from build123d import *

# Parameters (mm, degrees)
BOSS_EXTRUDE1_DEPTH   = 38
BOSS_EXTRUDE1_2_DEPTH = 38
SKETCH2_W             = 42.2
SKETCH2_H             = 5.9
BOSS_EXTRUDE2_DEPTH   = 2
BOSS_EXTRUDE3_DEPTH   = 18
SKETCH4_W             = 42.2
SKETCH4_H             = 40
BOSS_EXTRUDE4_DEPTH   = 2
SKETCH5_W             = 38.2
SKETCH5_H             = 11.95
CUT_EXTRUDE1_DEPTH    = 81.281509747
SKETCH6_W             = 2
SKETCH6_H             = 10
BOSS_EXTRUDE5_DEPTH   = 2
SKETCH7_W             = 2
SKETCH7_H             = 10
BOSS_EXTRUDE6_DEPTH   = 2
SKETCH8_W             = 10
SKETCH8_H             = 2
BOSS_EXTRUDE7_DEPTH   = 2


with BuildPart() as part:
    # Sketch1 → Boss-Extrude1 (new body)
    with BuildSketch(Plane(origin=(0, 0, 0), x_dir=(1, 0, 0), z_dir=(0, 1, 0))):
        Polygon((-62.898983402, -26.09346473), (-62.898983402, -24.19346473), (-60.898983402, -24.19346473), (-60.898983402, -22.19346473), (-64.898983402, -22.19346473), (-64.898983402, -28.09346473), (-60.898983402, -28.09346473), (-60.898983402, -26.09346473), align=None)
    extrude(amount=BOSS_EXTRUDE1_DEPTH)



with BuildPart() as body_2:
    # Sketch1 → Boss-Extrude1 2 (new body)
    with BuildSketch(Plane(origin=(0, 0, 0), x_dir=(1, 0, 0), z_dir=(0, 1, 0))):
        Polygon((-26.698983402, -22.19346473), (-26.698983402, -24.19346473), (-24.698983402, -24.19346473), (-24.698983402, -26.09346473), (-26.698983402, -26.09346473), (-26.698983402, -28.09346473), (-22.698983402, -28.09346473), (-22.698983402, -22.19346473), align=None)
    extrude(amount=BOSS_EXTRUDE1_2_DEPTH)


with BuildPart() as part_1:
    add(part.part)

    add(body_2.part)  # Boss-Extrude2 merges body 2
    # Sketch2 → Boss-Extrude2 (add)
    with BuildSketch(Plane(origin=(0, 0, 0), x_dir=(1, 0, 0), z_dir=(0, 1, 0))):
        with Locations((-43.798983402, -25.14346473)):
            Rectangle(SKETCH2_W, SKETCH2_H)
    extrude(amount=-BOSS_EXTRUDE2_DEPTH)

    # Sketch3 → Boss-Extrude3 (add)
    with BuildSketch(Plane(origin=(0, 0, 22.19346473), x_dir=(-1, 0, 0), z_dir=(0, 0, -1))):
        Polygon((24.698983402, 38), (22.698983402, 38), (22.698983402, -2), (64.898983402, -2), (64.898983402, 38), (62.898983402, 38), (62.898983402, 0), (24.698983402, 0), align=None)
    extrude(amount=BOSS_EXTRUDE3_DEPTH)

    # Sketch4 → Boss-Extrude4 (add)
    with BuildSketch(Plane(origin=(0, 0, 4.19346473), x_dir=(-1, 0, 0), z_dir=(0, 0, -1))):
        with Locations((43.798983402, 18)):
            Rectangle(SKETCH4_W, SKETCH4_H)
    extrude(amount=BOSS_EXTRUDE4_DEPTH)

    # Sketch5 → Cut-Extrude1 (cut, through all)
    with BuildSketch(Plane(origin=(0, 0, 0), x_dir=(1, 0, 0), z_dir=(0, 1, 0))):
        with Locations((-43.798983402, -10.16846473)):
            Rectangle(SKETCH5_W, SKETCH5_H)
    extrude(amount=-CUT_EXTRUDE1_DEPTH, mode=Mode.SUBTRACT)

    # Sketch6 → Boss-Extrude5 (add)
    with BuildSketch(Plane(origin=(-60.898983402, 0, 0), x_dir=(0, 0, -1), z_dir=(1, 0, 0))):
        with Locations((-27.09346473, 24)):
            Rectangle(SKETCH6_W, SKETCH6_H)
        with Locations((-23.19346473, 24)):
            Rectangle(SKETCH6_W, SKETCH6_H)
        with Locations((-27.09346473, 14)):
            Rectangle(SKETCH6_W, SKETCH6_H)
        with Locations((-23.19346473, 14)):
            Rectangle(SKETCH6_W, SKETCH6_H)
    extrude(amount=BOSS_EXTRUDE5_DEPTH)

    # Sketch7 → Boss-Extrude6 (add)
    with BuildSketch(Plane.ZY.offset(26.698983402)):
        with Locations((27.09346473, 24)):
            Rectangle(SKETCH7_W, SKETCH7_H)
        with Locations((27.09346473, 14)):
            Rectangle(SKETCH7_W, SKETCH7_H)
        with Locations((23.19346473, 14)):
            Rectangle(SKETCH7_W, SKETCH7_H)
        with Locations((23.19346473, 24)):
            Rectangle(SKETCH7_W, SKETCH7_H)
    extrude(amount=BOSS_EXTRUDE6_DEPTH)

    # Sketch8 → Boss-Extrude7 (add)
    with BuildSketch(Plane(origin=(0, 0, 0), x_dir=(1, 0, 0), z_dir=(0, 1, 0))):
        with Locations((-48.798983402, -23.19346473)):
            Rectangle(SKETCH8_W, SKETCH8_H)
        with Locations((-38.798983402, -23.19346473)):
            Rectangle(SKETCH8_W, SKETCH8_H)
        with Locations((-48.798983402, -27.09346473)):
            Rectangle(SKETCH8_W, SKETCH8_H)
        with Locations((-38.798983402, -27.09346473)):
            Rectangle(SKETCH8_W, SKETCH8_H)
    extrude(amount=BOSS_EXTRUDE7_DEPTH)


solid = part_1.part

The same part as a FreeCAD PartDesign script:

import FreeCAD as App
import Part
import Sketcher
Q = App.Units.Quantity

doc = App.newDocument("Part")
body = doc.addObject("PartDesign::Body", "Body")

sketch1 = body.newObject("Sketcher::SketchObject", "Sketch")
sketch1.AttachmentSupport = (doc.getObject("XZ_Plane"), [""])
sketch1.MapMode = "FlatFace"
sketch1.addGeometry([
    Part.LineSegment(App.Vector(-62.9, 26.1, 0), App.Vector(-62.9, 24.2, 0)),
    Part.LineSegment(App.Vector(-62.9, 24.2, 0), App.Vector(-60.9, 24.2, 0)),
    Part.LineSegment(App.Vector(-60.9, 24.2, 0), App.Vector(-60.9, 22.2, 0)),
    Part.LineSegment(App.Vector(-60.9, 22.2, 0), App.Vector(-64.9, 22.2, 0)),
    Part.LineSegment(App.Vector(-64.9, 22.2, 0), App.Vector(-64.9, 28.1, 0)),
    Part.LineSegment(App.Vector(-64.9, 28.1, 0), App.Vector(-60.9, 28.1, 0)),
    Part.LineSegment(App.Vector(-60.9, 28.1, 0), App.Vector(-60.9, 26.1, 0)),
    Part.LineSegment(App.Vector(-60.9, 26.1, 0), App.Vector(-62.9, 26.1, 0)),
], False)
sketch1.addConstraint([
    Sketcher.Constraint("Coincident", 0, 2, 1, 1),
    Sketcher.Constraint("Coincident", 1, 2, 2, 1),
    Sketcher.Constraint("Coincident", 2, 2, 3, 1),
    Sketcher.Constraint("Coincident", 3, 2, 4, 1),
    Sketcher.Constraint("Coincident", 4, 2, 5, 1),
    Sketcher.Constraint("Coincident", 5, 2, 6, 1),
    Sketcher.Constraint("Coincident", 6, 2, 7, 1),
    Sketcher.Constraint("Coincident", 7, 2, 0, 1),
    Sketcher.Constraint("Vertical", 0),
    Sketcher.Constraint("Horizontal", 1),
    Sketcher.Constraint("Vertical", 2),
    Sketcher.Constraint("Horizontal", 3),
    Sketcher.Constraint("Vertical", 4),
    Sketcher.Constraint("Horizontal", 5),
    Sketcher.Constraint("Vertical", 6),
    Sketcher.Constraint("Horizontal", 7),
    Sketcher.Constraint("Vertical", 2, 2, 5, 2),
    Sketcher.Constraint("Equal", 7, 2),
    Sketcher.Constraint("Equal", 2, 6),
    Sketcher.Constraint("DistanceX", 1, 1, 1, 2, Q("2 mm")),
    Sketcher.Constraint("DistanceX", 3, 2, 3, 1, Q("4 mm")),
    Sketcher.Constraint("DistanceY", 0, 2, 0, 1, Q("1.9 mm")),
    Sketcher.Constraint("DistanceX", 0, 2, -1, 1, Q("62.898983 mm")),
    Sketcher.Constraint("DistanceY", -1, 1, 0, 2, Q("24.193465 mm")),
])
pad1 = body.newObject("PartDesign::Pad", "Pad")
pad1.Profile = sketch1
pad1.Length = 38
pad1.Reversed = True
body2 = doc.addObject("PartDesign::Body", "Body001")

sketch2 = body2.newObject("Sketcher::SketchObject", "Sketch001")
sketch2.AttachmentSupport = (doc.getObject("XZ_Plane001"), [""])
sketch2.MapMode = "FlatFace"
sketch2.addGeometry([
    Part.LineSegment(App.Vector(-26.7, 22.2, 0), App.Vector(-26.7, 24.2, 0)),
    Part.LineSegment(App.Vector(-26.7, 24.2, 0), App.Vector(-24.7, 24.2, 0)),
    Part.LineSegment(App.Vector(-24.7, 24.2, 0), App.Vector(-24.7, 26.1, 0)),
    Part.LineSegment(App.Vector(-24.7, 26.1, 0), App.Vector(-26.7, 26.1, 0)),
    Part.LineSegment(App.Vector(-26.7, 26.1, 0), App.Vector(-26.7, 28.1, 0)),
    Part.LineSegment(App.Vector(-26.7, 28.1, 0), App.Vector(-22.7, 28.1, 0)),
    Part.LineSegment(App.Vector(-22.7, 28.1, 0), App.Vector(-22.7, 22.2, 0)),
    Part.LineSegment(App.Vector(-22.7, 22.2, 0), App.Vector(-26.7, 22.2, 0)),
], False)
sketch2.addConstraint([
    Sketcher.Constraint("Coincident", 0, 2, 1, 1),
    Sketcher.Constraint("Coincident", 1, 2, 2, 1),
    Sketcher.Constraint("Coincident", 2, 2, 3, 1),
    Sketcher.Constraint("Coincident", 3, 2, 4, 1),
    Sketcher.Constraint("Coincident", 4, 2, 5, 1),
    Sketcher.Constraint("Coincident", 5, 2, 6, 1),
    Sketcher.Constraint("Coincident", 6, 2, 7, 1),
    Sketcher.Constraint("Coincident", 7, 2, 0, 1),
    Sketcher.Constraint("Vertical", 0),
    Sketcher.Constraint("Horizontal", 1),
    Sketcher.Constraint("Vertical", 2),
    Sketcher.Constraint("Horizontal", 3),
    Sketcher.Constraint("Vertical", 4),
    Sketcher.Constraint("Horizontal", 5),
    Sketcher.Constraint("Vertical", 6),
    Sketcher.Constraint("Horizontal", 7),
    Sketcher.Constraint("Vertical", 0, 2, 3, 2),
    Sketcher.Constraint("Equal", 3, 0),
    Sketcher.Constraint("Equal", 0, 4),
    Sketcher.Constraint("DistanceX", 1, 1, 1, 2, Q("2 mm")),
    Sketcher.Constraint("DistanceX", 5, 1, 5, 2, Q("4 mm")),
    Sketcher.Constraint("DistanceY", 2, 1, 2, 2, Q("1.9 mm")),
    Sketcher.Constraint("DistanceX", 0, 2, -1, 1, Q("26.698983 mm")),
    Sketcher.Constraint("DistanceY", -1, 1, 0, 2, Q("24.193465 mm")),
])
pad2 = body2.newObject("PartDesign::Pad", "Pad001")
pad2.Profile = sketch2
pad2.Length = 38
pad2.Reversed = True
body.AllowCompound = True
doc.recompute()

boolean = body.newObject("PartDesign::Boolean", "Boolean")
boolean.Type = "Fuse"
boolean.addObjects([body2])

sketch3 = body.newObject("Sketcher::SketchObject", "Sketch002")
sketch3.AttachmentSupport = (doc.getObject("XZ_Plane"), [""])
sketch3.MapMode = "FlatFace"
sketch3.addGeometry([
    Part.LineSegment(App.Vector(-65, 22, 0), App.Vector(-65, 28, 0)),
    Part.LineSegment(App.Vector(-65, 28, 0), App.Vector(-23, 28, 0)),
    Part.LineSegment(App.Vector(-23, 28, 0), App.Vector(-23, 22, 0)),
    Part.LineSegment(App.Vector(-23, 22, 0), App.Vector(-65, 22, 0)),
], False)
sketch3.addConstraint([
    Sketcher.Constraint("Coincident", 0, 2, 1, 1),
    Sketcher.Constraint("Coincident", 1, 2, 2, 1),
    Sketcher.Constraint("Coincident", 2, 2, 3, 1),
    Sketcher.Constraint("Coincident", 3, 2, 0, 1),
    Sketcher.Constraint("Vertical", 0),
    Sketcher.Constraint("Horizontal", 1),
    Sketcher.Constraint("Vertical", 2),
    Sketcher.Constraint("Horizontal", 3),
    Sketcher.Constraint("DistanceX", 1, 1, 1, 2, Q("42.2 mm")),
    Sketcher.Constraint("DistanceY", 0, 1, 0, 2, Q("5.9 mm")),
    Sketcher.Constraint("DistanceX", 0, 2, -1, 1, Q("64.898983 mm")),
    Sketcher.Constraint("DistanceY", -1, 1, 0, 2, Q("28.093465 mm")),
])
pad3 = body.newObject("PartDesign::Pad", "Pad002")
pad3.Profile = sketch3
pad3.Length = 2

sketch4 = body.newObject("Sketcher::SketchObject", "Sketch003")
sketch4.AttachmentSupport = (doc.getObject("XY_Plane"), [""])
sketch4.MapMode = "FlatFace"
sketch4.AttachmentOffset = App.Placement(App.Vector(0, 0, 22.193465), App.Rotation())
sketch4.addGeometry([
    Part.LineSegment(App.Vector(-24.7, 38, 0), App.Vector(-22.7, 38, 0)),
    Part.LineSegment(App.Vector(-22.7, 38, 0), App.Vector(-22.7, -2, 0)),
    Part.LineSegment(App.Vector(-22.7, -2, 0), App.Vector(-64.9, -2, 0)),
    Part.LineSegment(App.Vector(-64.9, -2, 0), App.Vector(-64.9, 38, 0)),
    Part.LineSegment(App.Vector(-64.9, 38, 0), App.Vector(-62.9, 38, 0)),
    Part.LineSegment(App.Vector(-62.9, 38, 0), App.Vector(-62.9, 0, 0)),
    Part.LineSegment(App.Vector(-62.9, 0, 0), App.Vector(-24.7, 0, 0)),
    Part.LineSegment(App.Vector(-24.7, 0, 0), App.Vector(-24.7, 38, 0)),
], False)
sketch4.addConstraint([
    Sketcher.Constraint("Coincident", 0, 2, 1, 1),
    Sketcher.Constraint("Coincident", 1, 2, 2, 1),
    Sketcher.Constraint("Coincident", 2, 2, 3, 1),
    Sketcher.Constraint("Coincident", 3, 2, 4, 1),
    Sketcher.Constraint("Coincident", 4, 2, 5, 1),
    Sketcher.Constraint("Coincident", 5, 2, 6, 1),
    Sketcher.Constraint("Coincident", 6, 2, 7, 1),
    Sketcher.Constraint("Coincident", 7, 2, 0, 1),
    Sketcher.Constraint("Horizontal", 0),
    Sketcher.Constraint("Vertical", 1),
    Sketcher.Constraint("Horizontal", 2),
    Sketcher.Constraint("Vertical", 3),
    Sketcher.Constraint("Horizontal", 4),
    Sketcher.Constraint("Vertical", 5),
    Sketcher.Constraint("Horizontal", 6),
    Sketcher.Constraint("Vertical", 7),
    Sketcher.Constraint("PointOnObject", 5, 2, -1),
    Sketcher.Constraint("Horizontal", 0, 2, 3, 2),
    Sketcher.Constraint("Equal", 0, 4),
    Sketcher.Constraint("DistanceX", 0, 1, 0, 2, Q("2 mm")),
    Sketcher.Constraint("DistanceY", 1, 2, 1, 1, Q("40 mm")),
    Sketcher.Constraint("DistanceY", 5, 2, 5, 1, Q("38 mm")),
    Sketcher.Constraint("DistanceX", 2, 2, 2, 1, Q("42.2 mm")),
    Sketcher.Constraint("DistanceX", 0, 2, -1, 1, Q("22.698983 mm")),
])
pad4 = body.newObject("PartDesign::Pad", "Pad003")
pad4.Profile = sketch4
pad4.Length = 18
pad4.Reversed = True

sketch5 = body.newObject("Sketcher::SketchObject", "Sketch004")
sketch5.AttachmentSupport = (doc.getObject("XY_Plane"), [""])
sketch5.MapMode = "FlatFace"
sketch5.AttachmentOffset = App.Placement(App.Vector(0, 0, 4.193465), App.Rotation())
sketch5.addGeometry([
    Part.LineSegment(App.Vector(-23, 38, 0), App.Vector(-23, -2, 0)),
    Part.LineSegment(App.Vector(-23, -2, 0), App.Vector(-65, -2, 0)),
    Part.LineSegment(App.Vector(-65, -2, 0), App.Vector(-65, 38, 0)),
    Part.LineSegment(App.Vector(-65, 38, 0), App.Vector(-23, 38, 0)),
], False)
sketch5.addConstraint([
    Sketcher.Constraint("Coincident", 0, 2, 1, 1),
    Sketcher.Constraint("Coincident", 1, 2, 2, 1),
    Sketcher.Constraint("Coincident", 2, 2, 3, 1),
    Sketcher.Constraint("Coincident", 3, 2, 0, 1),
    Sketcher.Constraint("Vertical", 0),
    Sketcher.Constraint("Horizontal", 1),
    Sketcher.Constraint("Vertical", 2),
    Sketcher.Constraint("Horizontal", 3),
    Sketcher.Constraint("DistanceY", 0, 2, 0, 1, Q("40 mm")),
    Sketcher.Constraint("DistanceX", 1, 2, 1, 1, Q("42.2 mm")),
    Sketcher.Constraint("DistanceY", 0, 2, -1, 1, Q("2 mm")),
    Sketcher.Constraint("DistanceX", 0, 2, -1, 1, Q("22.698983 mm")),
])
pad5 = body.newObject("PartDesign::Pad", "Pad004")
pad5.Profile = sketch5
pad5.Length = 2
pad5.Reversed = True

sketch6 = body.newObject("Sketcher::SketchObject", "Sketch005")
sketch6.AttachmentSupport = (doc.getObject("XZ_Plane"), [""])
sketch6.MapMode = "FlatFace"
sketch6.addGeometry([
    Part.LineSegment(App.Vector(-63, 4, 0), App.Vector(-63, 16, 0)),
    Part.LineSegment(App.Vector(-63, 16, 0), App.Vector(-25, 16, 0)),
    Part.LineSegment(App.Vector(-25, 16, 0), App.Vector(-25, 4, 0)),
    Part.LineSegment(App.Vector(-25, 4, 0), App.Vector(-63, 4, 0)),
], False)
sketch6.addConstraint([
    Sketcher.Constraint("Coincident", 0, 2, 1, 1),
    Sketcher.Constraint("Coincident", 1, 2, 2, 1),
    Sketcher.Constraint("Coincident", 2, 2, 3, 1),
    Sketcher.Constraint("Coincident", 3, 2, 0, 1),
    Sketcher.Constraint("Vertical", 0),
    Sketcher.Constraint("Horizontal", 1),
    Sketcher.Constraint("Vertical", 2),
    Sketcher.Constraint("Horizontal", 3),
    Sketcher.Constraint("DistanceX", 1, 1, 1, 2, Q("38.2 mm")),
    Sketcher.Constraint("DistanceY", 0, 1, 0, 2, Q("11.95 mm")),
    Sketcher.Constraint("DistanceX", 0, 2, -1, 1, Q("62.898983 mm")),
    Sketcher.Constraint("DistanceY", -1, 1, 0, 2, Q("16.143465 mm")),
])
pocket1 = body.newObject("PartDesign::Pocket", "Pocket")
pocket1.Profile = sketch6
pocket1.Type = "ThroughAll"
pocket1.Reversed = True

sketch7 = body.newObject("Sketcher::SketchObject", "Sketch006")
sketch7.AttachmentSupport = (doc.getObject("YZ_Plane"), [""])
sketch7.MapMode = "FlatFace"
sketch7.AttachmentOffset = App.Placement(App.Vector(0, 0, -60.898983), App.Rotation())
sketch7.addGeometry([
    Part.LineSegment(App.Vector(29, 28.1, 0), App.Vector(9, 28.1, 0)),
    Part.LineSegment(App.Vector(9, 28.1, 0), App.Vector(9, 26.1, 0)),
    Part.LineSegment(App.Vector(9, 26.1, 0), App.Vector(29, 26.1, 0)),
    Part.LineSegment(App.Vector(29, 26.1, 0), App.Vector(29, 28.1, 0)),
    Part.LineSegment(App.Vector(29, 24.2, 0), App.Vector(9, 24.2, 0)),
    Part.LineSegment(App.Vector(9, 24.2, 0), App.Vector(9, 22.2, 0)),
    Part.LineSegment(App.Vector(9, 22.2, 0), App.Vector(29, 22.2, 0)),
    Part.LineSegment(App.Vector(29, 22.2, 0), App.Vector(29, 24.2, 0)),
], False)
sketch7.addConstraint([
    Sketcher.Constraint("Coincident", 0, 2, 1, 1),
    Sketcher.Constraint("Coincident", 1, 2, 2, 1),
    Sketcher.Constraint("Coincident", 2, 2, 3, 1),
    Sketcher.Constraint("Coincident", 3, 2, 0, 1),
    Sketcher.Constraint("Coincident", 4, 2, 5, 1),
    Sketcher.Constraint("Coincident", 5, 2, 6, 1),
    Sketcher.Constraint("Coincident", 6, 2, 7, 1),
    Sketcher.Constraint("Coincident", 7, 2, 4, 1),
    Sketcher.Constraint("Horizontal", 0),
    Sketcher.Constraint("Vertical", 1),
    Sketcher.Constraint("Horizontal", 2),
    Sketcher.Constraint("Vertical", 3),
    Sketcher.Constraint("Horizontal", 4),
    Sketcher.Constraint("Vertical", 5),
    Sketcher.Constraint("Horizontal", 6),
    Sketcher.Constraint("Vertical", 7),
    Sketcher.Constraint("Vertical", 1, 2, 4, 2),
    Sketcher.Constraint("Vertical", 3, 2, 6, 2),
    Sketcher.Constraint("Equal", 3, 5),
    Sketcher.Constraint("DistanceX", 0, 2, 0, 1, Q("20 mm")),
    Sketcher.Constraint("DistanceY", 1, 2, 1, 1, Q("2 mm")),
    Sketcher.Constraint("DistanceX", -1, 1, 0, 2, Q("9 mm")),
    Sketcher.Constraint("DistanceY", 4, 2, 1, 2, Q("1.9 mm")),
    Sketcher.Constraint("DistanceY", -1, 1, 0, 2, Q("28.093465 mm")),
])
pad6 = body.newObject("PartDesign::Pad", "Pad005")
pad6.Profile = sketch7
pad6.Length = 2

sketch8 = body.newObject("Sketcher::SketchObject", "Sketch007")
sketch8.AttachmentSupport = (doc.getObject("YZ_Plane"), [""])
sketch8.MapMode = "FlatFace"
sketch8.AttachmentOffset = App.Placement(App.Vector(0, 0, -26.698983), App.Rotation())
sketch8.addGeometry([
    Part.LineSegment(App.Vector(29, 26.1, 0), App.Vector(9, 26.1, 0)),
    Part.LineSegment(App.Vector(9, 26.1, 0), App.Vector(9, 28.1, 0)),
    Part.LineSegment(App.Vector(9, 28.1, 0), App.Vector(29, 28.1, 0)),
    Part.LineSegment(App.Vector(29, 28.1, 0), App.Vector(29, 26.1, 0)),
    Part.LineSegment(App.Vector(9, 22.2, 0), App.Vector(9, 24.2, 0)),
    Part.LineSegment(App.Vector(9, 24.2, 0), App.Vector(29, 24.2, 0)),
    Part.LineSegment(App.Vector(29, 24.2, 0), App.Vector(29, 22.2, 0)),
    Part.LineSegment(App.Vector(29, 22.2, 0), App.Vector(9, 22.2, 0)),
], False)
sketch8.addConstraint([
    Sketcher.Constraint("Coincident", 0, 2, 1, 1),
    Sketcher.Constraint("Coincident", 1, 2, 2, 1),
    Sketcher.Constraint("Coincident", 2, 2, 3, 1),
    Sketcher.Constraint("Coincident", 3, 2, 0, 1),
    Sketcher.Constraint("Coincident", 4, 2, 5, 1),
    Sketcher.Constraint("Coincident", 5, 2, 6, 1),
    Sketcher.Constraint("Coincident", 6, 2, 7, 1),
    Sketcher.Constraint("Coincident", 7, 2, 4, 1),
    Sketcher.Constraint("Horizontal", 0),
    Sketcher.Constraint("Vertical", 1),
    Sketcher.Constraint("Horizontal", 2),
    Sketcher.Constraint("Vertical", 3),
    Sketcher.Constraint("Vertical", 4),
    Sketcher.Constraint("Horizontal", 5),
    Sketcher.Constraint("Vertical", 6),
    Sketcher.Constraint("Horizontal", 7),
    Sketcher.Constraint("Vertical", 1, 2, 4, 2),
    Sketcher.Constraint("Vertical", 3, 2, 5, 2),
    Sketcher.Constraint("Equal", 3, 4),
    Sketcher.Constraint("DistanceX", 0, 2, 0, 1, Q("20 mm")),
    Sketcher.Constraint("DistanceY", 1, 1, 1, 2, Q("2 mm")),
    Sketcher.Constraint("DistanceX", -1, 1, 0, 2, Q("9 mm")),
    Sketcher.Constraint("DistanceY", 4, 2, 0, 2, Q("1.9 mm")),
    Sketcher.Constraint("DistanceY", -1, 1, 0, 2, Q("26.093465 mm")),
])
pad7 = body.newObject("PartDesign::Pad", "Pad006")
pad7.Profile = sketch8
pad7.Length = 2
pad7.Reversed = True

sketch9 = body.newObject("Sketcher::SketchObject", "Sketch008")
sketch9.AttachmentSupport = (doc.getObject("XZ_Plane"), [""])
sketch9.MapMode = "FlatFace"
sketch9.addGeometry([
    Part.LineSegment(App.Vector(-53.8, 22.2, 0), App.Vector(-53.8, 24.2, 0)),
    Part.LineSegment(App.Vector(-53.8, 24.2, 0), App.Vector(-33.8, 24.2, 0)),
    Part.LineSegment(App.Vector(-33.8, 24.2, 0), App.Vector(-33.8, 22.2, 0)),
    Part.LineSegment(App.Vector(-33.8, 22.2, 0), App.Vector(-53.8, 22.2, 0)),
    Part.LineSegment(App.Vector(-53.8, 26.1, 0), App.Vector(-53.8, 28.1, 0)),
    Part.LineSegment(App.Vector(-53.8, 28.1, 0), App.Vector(-33.8, 28.1, 0)),
    Part.LineSegment(App.Vector(-33.8, 28.1, 0), App.Vector(-33.8, 26.1, 0)),
    Part.LineSegment(App.Vector(-33.8, 26.1, 0), App.Vector(-53.8, 26.1, 0)),
], False)
sketch9.addConstraint([
    Sketcher.Constraint("Coincident", 0, 2, 1, 1),
    Sketcher.Constraint("Coincident", 1, 2, 2, 1),
    Sketcher.Constraint("Coincident", 2, 2, 3, 1),
    Sketcher.Constraint("Coincident", 3, 2, 0, 1),
    Sketcher.Constraint("Coincident", 4, 2, 5, 1),
    Sketcher.Constraint("Coincident", 5, 2, 6, 1),
    Sketcher.Constraint("Coincident", 6, 2, 7, 1),
    Sketcher.Constraint("Coincident", 7, 2, 4, 1),
    Sketcher.Constraint("Vertical", 0),
    Sketcher.Constraint("Horizontal", 1),
    Sketcher.Constraint("Vertical", 2),
    Sketcher.Constraint("Horizontal", 3),
    Sketcher.Constraint("Vertical", 4),
    Sketcher.Constraint("Horizontal", 5),
    Sketcher.Constraint("Vertical", 6),
    Sketcher.Constraint("Horizontal", 7),
    Sketcher.Constraint("Vertical", 3, 2, 4, 2),
    Sketcher.Constraint("Vertical", 2, 2, 5, 2),
    Sketcher.Constraint("Equal", 2, 4),
    Sketcher.Constraint("DistanceX", 1, 1, 1, 2, Q("20 mm")),
    Sketcher.Constraint("DistanceY", 0, 1, 0, 2, Q("2 mm")),
    Sketcher.Constraint("DistanceY", 0, 2, 4, 2, Q("3.9 mm")),
    Sketcher.Constraint("DistanceX", 0, 2, -1, 1, Q("53.798983 mm")),
    Sketcher.Constraint("DistanceY", -1, 1, 0, 2, Q("24.193465 mm")),
])
pad8 = body.newObject("PartDesign::Pad", "Pad007")
pad8.Profile = sketch9
pad8.Length = 2
pad8.Reversed = True

doc.recompute()
